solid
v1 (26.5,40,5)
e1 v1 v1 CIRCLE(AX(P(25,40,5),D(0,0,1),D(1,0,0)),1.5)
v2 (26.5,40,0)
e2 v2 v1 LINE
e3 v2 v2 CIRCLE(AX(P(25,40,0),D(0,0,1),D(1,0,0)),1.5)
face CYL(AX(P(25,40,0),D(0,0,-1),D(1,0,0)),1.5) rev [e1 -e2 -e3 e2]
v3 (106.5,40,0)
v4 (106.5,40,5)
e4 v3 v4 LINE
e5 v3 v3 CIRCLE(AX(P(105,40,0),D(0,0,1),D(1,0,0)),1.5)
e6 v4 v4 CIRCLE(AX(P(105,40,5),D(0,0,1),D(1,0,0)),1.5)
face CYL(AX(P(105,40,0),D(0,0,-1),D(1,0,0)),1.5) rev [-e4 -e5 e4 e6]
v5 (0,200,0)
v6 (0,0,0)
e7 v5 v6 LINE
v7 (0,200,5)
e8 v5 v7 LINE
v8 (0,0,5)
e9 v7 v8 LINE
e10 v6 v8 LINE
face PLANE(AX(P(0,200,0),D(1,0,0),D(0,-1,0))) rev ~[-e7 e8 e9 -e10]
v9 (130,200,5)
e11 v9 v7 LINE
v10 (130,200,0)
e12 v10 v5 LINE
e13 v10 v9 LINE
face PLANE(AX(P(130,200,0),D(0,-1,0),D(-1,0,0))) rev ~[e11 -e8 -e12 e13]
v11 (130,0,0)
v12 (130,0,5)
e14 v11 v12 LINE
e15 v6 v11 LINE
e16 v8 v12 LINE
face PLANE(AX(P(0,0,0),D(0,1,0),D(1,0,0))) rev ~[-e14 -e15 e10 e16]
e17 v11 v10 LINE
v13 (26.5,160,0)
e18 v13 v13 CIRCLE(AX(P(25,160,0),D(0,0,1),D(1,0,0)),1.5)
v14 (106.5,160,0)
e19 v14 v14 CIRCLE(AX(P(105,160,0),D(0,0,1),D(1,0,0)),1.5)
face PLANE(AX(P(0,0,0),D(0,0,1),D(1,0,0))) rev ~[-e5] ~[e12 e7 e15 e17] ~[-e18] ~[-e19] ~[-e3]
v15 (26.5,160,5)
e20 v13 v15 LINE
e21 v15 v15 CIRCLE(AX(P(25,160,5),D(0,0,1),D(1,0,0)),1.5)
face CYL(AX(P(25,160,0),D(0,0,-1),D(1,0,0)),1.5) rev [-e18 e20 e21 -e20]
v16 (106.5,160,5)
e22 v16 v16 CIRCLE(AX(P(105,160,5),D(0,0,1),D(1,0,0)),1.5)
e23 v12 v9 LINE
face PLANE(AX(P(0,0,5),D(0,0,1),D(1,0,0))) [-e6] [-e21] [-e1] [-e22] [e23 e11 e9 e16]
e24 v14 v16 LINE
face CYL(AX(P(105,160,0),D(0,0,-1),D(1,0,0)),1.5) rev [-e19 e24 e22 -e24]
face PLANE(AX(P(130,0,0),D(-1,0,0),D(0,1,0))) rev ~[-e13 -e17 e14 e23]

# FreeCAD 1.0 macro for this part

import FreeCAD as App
import Part
import Sketcher
from FreeCAD import Vector
Q = App.Units.Quantity


def add_polygon(sketch, points):
    """Adds a closed chain of lines whose ends are joined by coincident constraints."""
    first, n = sketch.GeometryCount, len(points)
    for a, b in zip(points, points[1:] + points[:1]):
        sketch.addGeometry(Part.LineSegment(App.Vector(*a, 0), App.Vector(*b, 0)), False)
    for i in range(n):
        sketch.addConstraint(Sketcher.Constraint("Coincident", first + i, 2, first + (i + 1) % n, 1))

doc = App.newDocument("Part")
body = doc.addObject("PartDesign::Body", "Body")

# Sketch on XY plane
sketch1 = body.newObject("Sketcher::SketchObject", "Sketch")
sketch1.AttachmentSupport = (doc.getObject("XY_Plane"), [""])
sketch1.MapMode = "FlatFace"
add_polygon(sketch1, [(0, 200), (0, 0), (130, 0), (130, 200)])  # lines 0-3
sketch1.addGeometry(Part.Circle(Vector(25, 40, 0), Vector(0, 0, 1), 1.5), False)  # 4
sketch1.addGeometry(Part.Circle(Vector(105, 40, 0), Vector(0, 0, 1), 1.5), False)  # 5
sketch1.addGeometry(Part.Circle(Vector(25, 160, 0), Vector(0, 0, 1), 1.5), False)  # 6
sketch1.addGeometry(Part.Circle(Vector(105, 160, 0), Vector(0, 0, 1), 1.5), False)  # 7
sketch1.addConstraint([
    Sketcher.Constraint("Vertical", 0),
    Sketcher.Constraint("Horizontal", 1),
    Sketcher.Constraint("Vertical", 2),
    Sketcher.Constraint("Horizontal", 3),
    Sketcher.Constraint("Coincident", 0, 2, -1, 1),
    Sketcher.Constraint("Equal", 4, 5),
    Sketcher.Constraint("Equal", 5, 6),
    Sketcher.Constraint("Equal", 6, 7),
    Sketcher.Constraint("Horizontal", 4, 3, 5, 3),
    Sketcher.Constraint("Horizontal", 6, 3, 7, 3),
    Sketcher.Constraint("Vertical", 4, 3, 6, 3),
    Sketcher.Constraint("Vertical", 5, 3, 7, 3),
    Sketcher.Constraint("Diameter", 4, Q("3 mm")),
    Sketcher.Constraint("DistanceX", 1, 1, 1, 2, Q("130 mm")),
    Sketcher.Constraint("DistanceY", 0, 2, 0, 1, Q("200 mm")),
    Sketcher.Constraint("DistanceX", -1, 1, 4, 3, Q("25 mm")),
    Sketcher.Constraint("DistanceY", -1, 1, 4, 3, Q("40 mm")),
    Sketcher.Constraint("DistanceX", -1, 1, 5, 3, Q("105 mm")),
    Sketcher.Constraint("DistanceY", -1, 1, 6, 3, Q("160 mm")),
])
pad1 = body.newObject("PartDesign::Pad", "Pad")
pad1.Profile = sketch1
pad1.Length = 5

doc.recompute()
